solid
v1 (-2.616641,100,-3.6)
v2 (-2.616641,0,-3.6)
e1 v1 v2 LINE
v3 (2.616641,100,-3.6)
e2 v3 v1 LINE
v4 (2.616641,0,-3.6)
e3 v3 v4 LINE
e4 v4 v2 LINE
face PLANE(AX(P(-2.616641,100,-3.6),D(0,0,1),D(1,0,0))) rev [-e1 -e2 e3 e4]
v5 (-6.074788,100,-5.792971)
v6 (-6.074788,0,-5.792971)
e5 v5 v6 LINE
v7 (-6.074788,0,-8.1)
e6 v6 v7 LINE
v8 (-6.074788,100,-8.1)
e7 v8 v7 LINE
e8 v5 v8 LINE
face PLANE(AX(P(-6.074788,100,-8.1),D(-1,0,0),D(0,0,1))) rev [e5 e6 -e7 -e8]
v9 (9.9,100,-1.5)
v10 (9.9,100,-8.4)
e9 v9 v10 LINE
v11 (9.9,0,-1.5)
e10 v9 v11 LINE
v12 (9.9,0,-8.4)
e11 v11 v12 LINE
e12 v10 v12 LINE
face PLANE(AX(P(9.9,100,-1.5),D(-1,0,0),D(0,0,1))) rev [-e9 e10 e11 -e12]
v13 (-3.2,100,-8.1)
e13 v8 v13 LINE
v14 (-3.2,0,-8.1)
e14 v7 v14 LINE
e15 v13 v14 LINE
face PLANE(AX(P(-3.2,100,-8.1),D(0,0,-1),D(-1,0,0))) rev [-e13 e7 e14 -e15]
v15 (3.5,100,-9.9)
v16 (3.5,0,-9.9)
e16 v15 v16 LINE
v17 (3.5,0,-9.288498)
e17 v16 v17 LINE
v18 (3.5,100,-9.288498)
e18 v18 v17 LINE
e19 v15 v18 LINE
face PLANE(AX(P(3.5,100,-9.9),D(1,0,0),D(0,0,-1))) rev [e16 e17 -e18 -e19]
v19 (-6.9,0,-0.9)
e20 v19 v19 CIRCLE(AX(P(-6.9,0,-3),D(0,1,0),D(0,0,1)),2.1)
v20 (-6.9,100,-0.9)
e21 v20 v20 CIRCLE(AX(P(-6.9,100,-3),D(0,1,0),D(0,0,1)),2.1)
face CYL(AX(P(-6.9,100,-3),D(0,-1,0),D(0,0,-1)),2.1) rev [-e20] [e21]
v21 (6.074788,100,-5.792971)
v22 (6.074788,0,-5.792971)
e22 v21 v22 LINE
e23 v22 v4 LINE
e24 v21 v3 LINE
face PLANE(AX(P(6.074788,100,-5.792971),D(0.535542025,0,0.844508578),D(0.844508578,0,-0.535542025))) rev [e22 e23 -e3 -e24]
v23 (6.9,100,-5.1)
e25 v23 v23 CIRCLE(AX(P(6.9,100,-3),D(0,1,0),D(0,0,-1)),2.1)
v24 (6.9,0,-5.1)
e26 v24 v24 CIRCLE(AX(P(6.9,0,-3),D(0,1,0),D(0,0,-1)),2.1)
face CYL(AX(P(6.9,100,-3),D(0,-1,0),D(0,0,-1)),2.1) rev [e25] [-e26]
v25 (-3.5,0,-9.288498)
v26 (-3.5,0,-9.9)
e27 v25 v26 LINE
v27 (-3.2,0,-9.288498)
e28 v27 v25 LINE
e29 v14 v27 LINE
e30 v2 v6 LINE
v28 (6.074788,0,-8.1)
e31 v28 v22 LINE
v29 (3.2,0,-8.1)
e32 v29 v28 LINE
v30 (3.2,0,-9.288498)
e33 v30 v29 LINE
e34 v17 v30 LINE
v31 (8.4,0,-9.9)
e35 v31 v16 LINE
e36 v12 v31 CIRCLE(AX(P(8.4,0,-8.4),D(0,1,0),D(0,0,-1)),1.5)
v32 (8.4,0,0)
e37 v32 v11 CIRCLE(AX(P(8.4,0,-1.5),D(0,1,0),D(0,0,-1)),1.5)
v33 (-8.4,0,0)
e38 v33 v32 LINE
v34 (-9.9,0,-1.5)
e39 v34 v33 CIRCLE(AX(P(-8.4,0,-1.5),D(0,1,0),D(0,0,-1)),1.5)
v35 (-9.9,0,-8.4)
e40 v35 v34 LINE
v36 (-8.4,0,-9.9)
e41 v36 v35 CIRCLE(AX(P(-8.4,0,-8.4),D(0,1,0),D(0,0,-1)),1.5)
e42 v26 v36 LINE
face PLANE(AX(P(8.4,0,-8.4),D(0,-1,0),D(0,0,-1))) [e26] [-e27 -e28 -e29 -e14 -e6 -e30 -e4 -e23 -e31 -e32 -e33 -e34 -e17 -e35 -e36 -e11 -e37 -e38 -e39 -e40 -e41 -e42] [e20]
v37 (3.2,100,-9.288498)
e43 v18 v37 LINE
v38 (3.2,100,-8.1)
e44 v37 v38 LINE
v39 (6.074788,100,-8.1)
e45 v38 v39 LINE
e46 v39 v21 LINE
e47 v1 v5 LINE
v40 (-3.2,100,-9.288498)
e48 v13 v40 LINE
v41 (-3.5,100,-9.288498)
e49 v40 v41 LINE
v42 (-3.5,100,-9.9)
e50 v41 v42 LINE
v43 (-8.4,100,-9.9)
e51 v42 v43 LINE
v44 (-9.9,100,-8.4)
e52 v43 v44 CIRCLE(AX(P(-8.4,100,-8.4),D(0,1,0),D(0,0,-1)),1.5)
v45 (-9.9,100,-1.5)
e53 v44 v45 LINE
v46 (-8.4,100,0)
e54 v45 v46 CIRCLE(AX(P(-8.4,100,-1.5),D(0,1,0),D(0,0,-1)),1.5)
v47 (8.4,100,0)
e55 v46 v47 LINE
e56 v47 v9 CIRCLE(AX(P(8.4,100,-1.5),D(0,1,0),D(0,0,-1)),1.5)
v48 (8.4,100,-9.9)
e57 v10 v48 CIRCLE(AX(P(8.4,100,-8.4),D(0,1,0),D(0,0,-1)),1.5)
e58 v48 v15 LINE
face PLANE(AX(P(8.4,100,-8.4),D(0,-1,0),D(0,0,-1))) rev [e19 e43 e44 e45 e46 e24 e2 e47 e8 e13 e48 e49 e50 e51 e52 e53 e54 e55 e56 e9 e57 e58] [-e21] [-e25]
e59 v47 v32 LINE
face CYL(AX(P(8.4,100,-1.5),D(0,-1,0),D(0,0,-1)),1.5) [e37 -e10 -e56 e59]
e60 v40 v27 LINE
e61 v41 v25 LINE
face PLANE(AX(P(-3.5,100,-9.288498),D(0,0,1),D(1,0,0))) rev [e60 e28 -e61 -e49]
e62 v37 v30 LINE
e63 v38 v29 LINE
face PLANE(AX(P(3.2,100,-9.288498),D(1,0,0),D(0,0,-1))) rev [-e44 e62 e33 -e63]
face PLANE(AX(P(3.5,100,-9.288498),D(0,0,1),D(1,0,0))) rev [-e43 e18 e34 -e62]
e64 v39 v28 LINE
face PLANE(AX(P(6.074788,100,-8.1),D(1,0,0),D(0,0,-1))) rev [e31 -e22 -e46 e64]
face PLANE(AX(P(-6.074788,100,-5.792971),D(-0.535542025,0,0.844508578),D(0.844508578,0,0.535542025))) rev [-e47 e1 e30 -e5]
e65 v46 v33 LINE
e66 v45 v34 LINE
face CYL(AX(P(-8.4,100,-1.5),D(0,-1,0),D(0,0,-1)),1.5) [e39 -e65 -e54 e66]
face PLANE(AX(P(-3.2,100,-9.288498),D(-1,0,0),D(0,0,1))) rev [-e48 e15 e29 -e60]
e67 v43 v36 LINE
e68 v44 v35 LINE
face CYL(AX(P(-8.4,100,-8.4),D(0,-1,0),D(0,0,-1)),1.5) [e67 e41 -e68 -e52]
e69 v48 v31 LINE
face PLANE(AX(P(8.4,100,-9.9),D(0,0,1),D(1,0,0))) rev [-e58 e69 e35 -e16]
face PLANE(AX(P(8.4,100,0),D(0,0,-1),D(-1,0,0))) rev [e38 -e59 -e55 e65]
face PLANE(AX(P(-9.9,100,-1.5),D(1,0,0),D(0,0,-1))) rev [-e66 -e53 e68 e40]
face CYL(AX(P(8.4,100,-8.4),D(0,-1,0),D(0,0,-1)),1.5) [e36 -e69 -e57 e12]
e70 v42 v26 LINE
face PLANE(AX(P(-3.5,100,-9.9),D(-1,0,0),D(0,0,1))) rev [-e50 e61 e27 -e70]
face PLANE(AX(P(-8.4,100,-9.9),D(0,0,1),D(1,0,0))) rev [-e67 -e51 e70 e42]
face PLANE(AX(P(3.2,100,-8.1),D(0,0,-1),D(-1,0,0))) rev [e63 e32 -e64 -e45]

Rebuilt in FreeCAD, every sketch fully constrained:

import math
import FreeCAD as App
import Part
import Sketcher

V = App.Vector
Q = App.Units.Quantity

doc = App.newDocument("Part")
body = doc.addObject("PartDesign::Body", "Body")

sketch1 = body.newObject("Sketcher::SketchObject", "Sketch")
sketch1.AttachmentSupport = (doc.getObject("XZ_Plane"), [""])
sketch1.MapMode = "FlatFace"
sketch1.addGeometry([
    Part.LineSegment(V(-8.4, 0, 0), V(8.4, 0, 0)),
    Part.ArcOfCircle(Part.Circle(V(8.4, -1.5, 0), V(0, 0, 1), 1.5), math.radians(0), math.radians(90)),
    Part.LineSegment(V(9.9, -1.5, 0), V(9.9, -8.4, 0)),
    Part.ArcOfCircle(Part.Circle(V(8.4, -8.4, 0), V(0, 0, 1), 1.5), math.radians(-90), math.radians(0)),
    Part.LineSegment(V(8.4, -9.9, 0), V(3.5, -9.9, 0)),
    Part.LineSegment(V(3.5, -9.9, 0), V(3.5, -9.29, 0)),
    Part.LineSegment(V(3.5, -9.29, 0), V(3.2, -9.29, 0)),
    Part.LineSegment(V(3.2, -9.29, 0), V(3.2, -8.1, 0)),
    Part.LineSegment(V(3.2, -8.1, 0), V(6.07, -8.1, 0)),
    Part.LineSegment(V(6.07, -8.1, 0), V(6.07, -5.79, 0)),
    Part.LineSegment(V(6.07, -5.79, 0), V(2.62, -3.6, 0)),
    Part.LineSegment(V(2.62, -3.6, 0), V(-2.62, -3.6, 0)),
    Part.LineSegment(V(-2.62, -3.6, 0), V(-6.07, -5.79, 0)),
    Part.LineSegment(V(-6.07, -5.79, 0), V(-6.07, -8.1, 0)),
    Part.LineSegment(V(-6.07, -8.1, 0), V(-3.2, -8.1, 0)),
    Part.LineSegment(V(-3.2, -8.1, 0), V(-3.2, -9.29, 0)),
    Part.LineSegment(V(-3.2, -9.29, 0), V(-3.5, -9.29, 0)),
    Part.LineSegment(V(-3.5, -9.29, 0), V(-3.5, -9.9, 0)),
    Part.LineSegment(V(-3.5, -9.9, 0), V(-8.4, -9.9, 0)),
    Part.ArcOfCircle(Part.Circle(V(-8.4, -8.4, 0), V(0, 0, 1), 1.5), math.radians(180), math.radians(270)),
    Part.LineSegment(V(-9.9, -8.4, 0), V(-9.9, -1.5, 0)),
    Part.ArcOfCircle(Part.Circle(V(-8.4, -1.5, 0), V(0, 0, 1), 1.5), math.radians(90), math.radians(180)),
    Part.Circle(V(6.9, -3, 0), V(0, 0, 1), 2.1),
    Part.Circle(V(-6.9, -3, 0), V(0, 0, 1), 2.1),
], False)
sketch1.addConstraint([
    Sketcher.Constraint("Tangent", 0, 2, 1, 2),
    Sketcher.Constraint("Tangent", 1, 1, 2, 1),
    Sketcher.Constraint("Tangent", 2, 2, 3, 2),
    Sketcher.Constraint("Tangent", 3, 1, 4, 1),
    Sketcher.Constraint("Coincident", 4, 2, 5, 1),
    Sketcher.Constraint("Coincident", 5, 2, 6, 1),
    Sketcher.Constraint("Coincident", 6, 2, 7, 1),
    Sketcher.Constraint("Coincident", 7, 2, 8, 1),
    Sketcher.Constraint("Coincident", 8, 2, 9, 1),
    Sketcher.Constraint("Coincident", 9, 2, 10, 1),
    Sketcher.Constraint("Coincident", 10, 2, 11, 1),
    Sketcher.Constraint("Coincident", 11, 2, 12, 1),
    Sketcher.Constraint("Coincident", 12, 2, 13, 1),
    Sketcher.Constraint("Coincident", 13, 2, 14, 1),
    Sketcher.Constraint("Coincident", 14, 2, 15, 1),
    Sketcher.Constraint("Coincident", 15, 2, 16, 1),
    Sketcher.Constraint("Coincident", 16, 2, 17, 1),
    Sketcher.Constraint("Coincident", 17, 2, 18, 1),
    Sketcher.Constraint("Tangent", 18, 2, 19, 2),
    Sketcher.Constraint("Tangent", 19, 1, 20, 1),
    Sketcher.Constraint("Tangent", 20, 2, 21, 2),
    Sketcher.Constraint("Tangent", 21, 1, 0, 1),
    Sketcher.Constraint("Horizontal", 0),
    Sketcher.Constraint("Vertical", 2),
    Sketcher.Constraint("Horizontal", 4),
    Sketcher.Constraint("Vertical", 5),
    Sketcher.Constraint("Horizontal", 6),
    Sketcher.Constraint("Vertical", 7),
    Sketcher.Constraint("Horizontal", 8),
    Sketcher.Constraint("Vertical", 9),
    Sketcher.Constraint("Horizontal", 11),
    Sketcher.Constraint("Vertical", 13),
    Sketcher.Constraint("Horizontal", 14),
    Sketcher.Constraint("Vertical", 15),
    Sketcher.Constraint("Horizontal", 16),
    Sketcher.Constraint("Vertical", 17),
    Sketcher.Constraint("Horizontal", 18),
    Sketcher.Constraint("Vertical", 20),
    Sketcher.Constraint("Equal", 1, 3),
    Sketcher.Constraint("Equal", 3, 19),
    Sketcher.Constraint("Equal", 19, 21),
    Sketcher.Constraint("Equal", 22, 23),
    Sketcher.Constraint("Symmetric", 0, 2, 21, 1, -1, 1),
    Sketcher.Constraint("Symmetric", 22, 3, 23, 3, -2),
    Sketcher.Constraint("Symmetric", 9, 2, 12, 2, -2),
    Sketcher.Constraint("Symmetric", 7, 2, 14, 2, -2),
    Sketcher.Constraint("Symmetric", 5, 2, 16, 2, -2),
    Sketcher.Constraint("Horizontal", 3, 3, 19, 3),
    Sketcher.Constraint("Equal", 10, 12),
    Sketcher.Constraint("Diameter", 22, Q("4.2 mm")),
    Sketcher.Constraint("Radius", 1, Q("1.5 mm")),
    Sketcher.Constraint("DistanceX", 0, 1, 0, 2, Q("16.8 mm")),
    Sketcher.Constraint("DistanceX", 4, 2, 4, 1, Q("4.9 mm")),
    Sketcher.Constraint("DistanceX", 6, 2, 6, 1, Q("0.3 mm")),
    Sketcher.Constraint("DistanceY", 2, 2, 2, 1, Q("6.9 mm")),
    Sketcher.Constraint("DistanceY", 22, 3, -1, 1, Q("3 mm")),
    Sketcher.Constraint("DistanceX", 22, 3, 1, 1, Q("3 mm")),
    Sketcher.Constraint("DistanceY", 7, 2, -1, 1, Q("8.1 mm")),
    Sketcher.Constraint("DistanceY", 10, 2, -1, 1, Q("3.6 mm")),
    Sketcher.Constraint("DistanceY", 5, 1, 5, 2, Q("0.611502 mm")),
    Sketcher.Constraint("DistanceX", 8, 1, 8, 2, Q("2.874788 mm")),
    Sketcher.Constraint("DistanceY", 9, 1, 9, 2, Q("2.307029 mm")),
    Sketcher.Constraint("DistanceX", 11, 2, 11, 1, Q("5.233283 mm")),
])
pad1 = body.newObject("PartDesign::Pad", "Pad")
pad1.Profile = sketch1
pad1.Length = 100
pad1.Reversed = True

doc.recompute()
